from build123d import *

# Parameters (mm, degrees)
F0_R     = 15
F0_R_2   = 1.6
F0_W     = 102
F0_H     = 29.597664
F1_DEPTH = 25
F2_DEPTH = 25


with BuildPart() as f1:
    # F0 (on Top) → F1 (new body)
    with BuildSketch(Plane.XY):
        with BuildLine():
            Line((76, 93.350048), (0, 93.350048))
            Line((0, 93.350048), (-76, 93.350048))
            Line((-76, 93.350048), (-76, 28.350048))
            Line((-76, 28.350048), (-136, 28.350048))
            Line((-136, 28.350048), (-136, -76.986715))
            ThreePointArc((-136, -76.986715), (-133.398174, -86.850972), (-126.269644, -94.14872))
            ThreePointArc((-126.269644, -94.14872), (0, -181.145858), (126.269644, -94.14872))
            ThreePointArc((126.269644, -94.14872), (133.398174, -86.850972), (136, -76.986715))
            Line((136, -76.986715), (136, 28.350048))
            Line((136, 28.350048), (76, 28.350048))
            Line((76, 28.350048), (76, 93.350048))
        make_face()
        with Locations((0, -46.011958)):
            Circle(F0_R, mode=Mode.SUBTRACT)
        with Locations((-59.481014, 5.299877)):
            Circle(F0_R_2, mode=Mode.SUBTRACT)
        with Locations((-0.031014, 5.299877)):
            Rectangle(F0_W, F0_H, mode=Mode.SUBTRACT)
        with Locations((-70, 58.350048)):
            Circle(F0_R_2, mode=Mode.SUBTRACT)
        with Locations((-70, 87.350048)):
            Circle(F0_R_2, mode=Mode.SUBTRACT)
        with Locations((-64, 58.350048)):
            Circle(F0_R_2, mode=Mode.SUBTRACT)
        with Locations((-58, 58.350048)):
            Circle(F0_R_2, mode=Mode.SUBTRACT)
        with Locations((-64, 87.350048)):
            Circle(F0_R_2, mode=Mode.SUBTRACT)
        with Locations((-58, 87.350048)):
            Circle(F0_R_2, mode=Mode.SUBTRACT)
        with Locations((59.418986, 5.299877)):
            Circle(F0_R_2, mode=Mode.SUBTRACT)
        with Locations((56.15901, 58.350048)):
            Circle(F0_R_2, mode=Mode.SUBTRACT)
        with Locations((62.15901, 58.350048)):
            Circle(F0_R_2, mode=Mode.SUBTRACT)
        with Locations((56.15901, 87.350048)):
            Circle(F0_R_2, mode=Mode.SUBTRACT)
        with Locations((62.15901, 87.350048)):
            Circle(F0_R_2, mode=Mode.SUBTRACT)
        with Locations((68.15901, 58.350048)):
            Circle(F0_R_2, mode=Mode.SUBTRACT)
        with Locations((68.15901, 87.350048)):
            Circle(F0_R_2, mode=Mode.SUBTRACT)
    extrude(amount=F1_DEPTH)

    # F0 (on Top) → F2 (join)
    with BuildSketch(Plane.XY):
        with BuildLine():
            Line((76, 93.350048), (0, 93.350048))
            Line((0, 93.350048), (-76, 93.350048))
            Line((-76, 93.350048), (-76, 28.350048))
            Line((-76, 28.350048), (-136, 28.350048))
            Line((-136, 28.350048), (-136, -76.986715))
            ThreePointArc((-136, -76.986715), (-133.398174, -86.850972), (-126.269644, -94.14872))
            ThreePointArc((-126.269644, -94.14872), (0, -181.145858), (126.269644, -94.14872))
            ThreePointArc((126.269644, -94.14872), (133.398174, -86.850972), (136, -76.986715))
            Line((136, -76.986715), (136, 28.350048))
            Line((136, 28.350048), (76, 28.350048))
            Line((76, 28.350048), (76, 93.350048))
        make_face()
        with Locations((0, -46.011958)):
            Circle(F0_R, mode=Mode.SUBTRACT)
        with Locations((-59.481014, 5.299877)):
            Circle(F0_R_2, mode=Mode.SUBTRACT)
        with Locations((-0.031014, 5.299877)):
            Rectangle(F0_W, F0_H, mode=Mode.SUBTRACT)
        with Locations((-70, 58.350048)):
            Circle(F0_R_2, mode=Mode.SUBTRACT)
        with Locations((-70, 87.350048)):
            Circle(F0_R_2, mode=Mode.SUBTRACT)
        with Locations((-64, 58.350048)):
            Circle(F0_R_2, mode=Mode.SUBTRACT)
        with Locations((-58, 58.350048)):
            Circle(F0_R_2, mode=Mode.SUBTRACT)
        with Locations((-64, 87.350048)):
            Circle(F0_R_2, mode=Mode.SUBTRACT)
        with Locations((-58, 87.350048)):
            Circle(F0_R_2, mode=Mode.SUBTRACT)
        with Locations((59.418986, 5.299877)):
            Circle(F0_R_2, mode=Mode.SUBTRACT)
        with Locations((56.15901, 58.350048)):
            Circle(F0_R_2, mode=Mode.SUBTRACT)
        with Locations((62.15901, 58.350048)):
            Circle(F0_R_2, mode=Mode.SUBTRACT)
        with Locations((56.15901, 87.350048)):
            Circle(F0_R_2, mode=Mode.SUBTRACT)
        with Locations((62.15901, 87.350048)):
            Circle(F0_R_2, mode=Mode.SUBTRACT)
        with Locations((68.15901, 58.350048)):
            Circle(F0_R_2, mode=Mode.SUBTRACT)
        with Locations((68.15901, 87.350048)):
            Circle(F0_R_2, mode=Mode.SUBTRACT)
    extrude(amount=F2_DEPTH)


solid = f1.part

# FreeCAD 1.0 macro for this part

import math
import FreeCAD as App
import Part
import Sketcher
Q = App.Units.Quantity


def add_polygon(sketch, points):
    """Adds a closed chain of lines whose ends are joined by coincident constraints."""
    first, n = sketch.GeometryCount, len(points)
    for a, b in zip(points, points[1:] + points[:1]):
        sketch.addGeometry(Part.LineSegment(App.Vector(*a, 0), App.Vector(*b, 0)), False)
    for i in range(n):
        sketch.addConstraint(Sketcher.Constraint("Coincident", first + i, 2, first + (i + 1) % n, 1))

doc = App.newDocument("Part")
body = doc.addObject("PartDesign::Body", "Body")

sketch1 = body.newObject("Sketcher::SketchObject", "Sketch")
sketch1.AttachmentSupport = (doc.getObject("XY_Plane"), [""])
sketch1.MapMode = "FlatFace"
sketch1.addGeometry(Part.LineSegment(App.Vector(76, 93.350048, 0), App.Vector(-76, 93.350048, 0)), False)
sketch1.addGeometry(Part.LineSegment(App.Vector(-76, 93.350048, 0), App.Vector(-76, 28.350048, 0)), False)
sketch1.addGeometry(Part.LineSegment(App.Vector(-76, 28.350048, 0), App.Vector(-136, 28.350048, 0)), False)
sketch1.addGeometry(Part.LineSegment(App.Vector(-136, 28.350048, 0), App.Vector(-136, -76.986715, 0)), False)
sketch1.addGeometry(Part.ArcOfCircle(Part.Circle(App.Vector(-116.000004, -76.986717, 0), App.Vector(0, 0, 1), 19.999996), math.radians(179.999994), math.radians(239.103949)), False)
sketch1.addGeometry(Part.ArcOfCircle(Part.Circle(App.Vector(0, -46.011958, 0), App.Vector(0, 0, 1), 135.1339), math.radians(-159.132055), math.radians(-20.867945)), False)
sketch1.addGeometry(Part.ArcOfCircle(Part.Circle(App.Vector(116.000004, -76.986717, 0), App.Vector(0, 0, 1), 19.999996), math.radians(-59.103949), math.radians(0.000006)), False)
sketch1.addGeometry(Part.LineSegment(App.Vector(136, -76.986715, 0), App.Vector(136, 28.350048, 0)), False)
sketch1.addGeometry(Part.LineSegment(App.Vector(136, 28.350048, 0), App.Vector(76, 28.350048, 0)), False)
sketch1.addGeometry(Part.LineSegment(App.Vector(76, 28.350048, 0), App.Vector(76, 93.350048, 0)), False)
sketch1.addGeometry(Part.Circle(App.Vector(-59.481014, 5.299877, 0), App.Vector(0, 0, 1), 1.6), False)
sketch1.addGeometry(Part.Circle(App.Vector(0, -46.011958, 0), App.Vector(0, 0, 1), 15), False)
add_polygon(sketch1, [(50.968986, -9.498955), (-51.031014, -9.498955), (-51.031014, 20.098709), (50.968986, 20.098709)])
sketch1.addGeometry(Part.Circle(App.Vector(59.418986, 5.299877, 0), App.Vector(0, 0, 1), 1.6), False)
sketch1.addGeometry(Part.Circle(App.Vector(-70, 58.350048, 0), App.Vector(0, 0, 1), 1.6), False)
sketch1.addGeometry(Part.Circle(App.Vector(-64, 58.350048, 0), App.Vector(0, 0, 1), 1.6), False)
sketch1.addGeometry(Part.Circle(App.Vector(-58, 58.350048, 0), App.Vector(0, 0, 1), 1.6), False)
sketch1.addGeometry(Part.Circle(App.Vector(-70, 87.350048, 0), App.Vector(0, 0, 1), 1.6), False)
sketch1.addGeometry(Part.Circle(App.Vector(-64, 87.350048, 0), App.Vector(0, 0, 1), 1.6), False)
sketch1.addGeometry(Part.Circle(App.Vector(-58, 87.350048, 0), App.Vector(0, 0, 1), 1.6), False)
sketch1.addGeometry(Part.Circle(App.Vector(56.15901, 58.350048, 0), App.Vector(0, 0, 1), 1.6), False)
sketch1.addGeometry(Part.Circle(App.Vector(62.15901, 58.350048, 0), App.Vector(0, 0, 1), 1.6), False)
sketch1.addGeometry(Part.Circle(App.Vector(68.15901, 58.350048, 0), App.Vector(0, 0, 1), 1.6), False)
sketch1.addGeometry(Part.Circle(App.Vector(56.15901, 87.350048, 0), App.Vector(0, 0, 1), 1.6), False)
sketch1.addGeometry(Part.Circle(App.Vector(62.15901, 87.350048, 0), App.Vector(0, 0, 1), 1.6), False)
sketch1.addGeometry(Part.Circle(App.Vector(68.15901, 87.350048, 0), App.Vector(0, 0, 1), 1.6), False)
sketch1.addConstraint(Sketcher.Constraint("Coincident", 0, 2, 1, 1))
sketch1.addConstraint(Sketcher.Constraint("Coincident", 1, 2, 2, 1))
sketch1.addConstraint(Sketcher.Constraint("Coincident", 2, 2, 3, 1))
sketch1.addConstraint(Sketcher.Constraint("Tangent", 3, 2, 4, 1))
sketch1.addConstraint(Sketcher.Constraint("Coincident", 4, 2, 5, 1))
sketch1.addConstraint(Sketcher.Constraint("Coincident", 5, 2, 6, 1))
sketch1.addConstraint(Sketcher.Constraint("Tangent", 6, 2, 7, 1))
sketch1.addConstraint(Sketcher.Constraint("Coincident", 7, 2, 8, 1))
sketch1.addConstraint(Sketcher.Constraint("Coincident", 8, 2, 9, 1))
sketch1.addConstraint(Sketcher.Constraint("Coincident", 9, 2, 0, 1))
sketch1.addConstraint(Sketcher.Constraint("Horizontal", 0))
sketch1.addConstraint(Sketcher.Constraint("Vertical", 1))
sketch1.addConstraint(Sketcher.Constraint("Horizontal", 2))
sketch1.addConstraint(Sketcher.Constraint("Vertical", 3))
sketch1.addConstraint(Sketcher.Constraint("Vertical", 7))
sketch1.addConstraint(Sketcher.Constraint("Horizontal", 8))
sketch1.addConstraint(Sketcher.Constraint("Vertical", 9))
sketch1.addConstraint(Sketcher.Constraint("Horizontal", 12))
sketch1.addConstraint(Sketcher.Constraint("Vertical", 13))
sketch1.addConstraint(Sketcher.Constraint("Horizontal", 14))
sketch1.addConstraint(Sketcher.Constraint("Vertical", 15))
sketch1.addConstraint(Sketcher.Constraint("Coincident", 11, 3, 5, 3))
sketch1.addConstraint(Sketcher.Constraint("Equal", 4, 6))
sketch1.addConstraint(Sketcher.Constraint("Equal", 10, 16))
sketch1.addConstraint(Sketcher.Constraint("Equal", 16, 17))
sketch1.addConstraint(Sketcher.Constraint("Equal", 17, 18))
sketch1.addConstraint(Sketcher.Constraint("Equal", 18, 19))
sketch1.addConstraint(Sketcher.Constraint("Equal", 19, 20))
sketch1.addConstraint(Sketcher.Constraint("Equal", 20, 21))
sketch1.addConstraint(Sketcher.Constraint("Equal", 21, 22))
sketch1.addConstraint(Sketcher.Constraint("Equal", 22, 23))
sketch1.addConstraint(Sketcher.Constraint("Equal", 23, 24))
sketch1.addConstraint(Sketcher.Constraint("Equal", 24, 25))
sketch1.addConstraint(Sketcher.Constraint("Equal", 25, 26))
sketch1.addConstraint(Sketcher.Constraint("Equal", 26, 27))
sketch1.addConstraint(Sketcher.Constraint("Equal", 27, 28))
sketch1.addConstraint(Sketcher.Constraint("Symmetric", 4, 3, 6, 3, -2))
sketch1.addConstraint(Sketcher.Constraint("Symmetric", 1, 2, 8, 2, -2))
sketch1.addConstraint(Sketcher.Constraint("PointOnObject", 5, 3, -2))
sketch1.addConstraint(Sketcher.Constraint("Horizontal", 10, 3, 16, 3))
sketch1.addConstraint(Sketcher.Constraint("Horizontal", 17, 3, 18, 3))
sketch1.addConstraint(Sketcher.Constraint("Horizontal", 18, 3, 19, 3))
sketch1.addConstraint(Sketcher.Constraint("Horizontal", 20, 3, 21, 3))
sketch1.addConstraint(Sketcher.Constraint("Horizontal", 21, 3, 22, 3))
sketch1.addConstraint(Sketcher.Constraint("Horizontal", 19, 3, 23, 3))
sketch1.addConstraint(Sketcher.Constraint("Horizontal", 23, 3, 24, 3))
sketch1.addConstraint(Sketcher.Constraint("Horizontal", 24, 3, 25, 3))
sketch1.addConstraint(Sketcher.Constraint("Horizontal", 22, 3, 26, 3))
sketch1.addConstraint(Sketcher.Constraint("Horizontal", 26, 3, 27, 3))
sketch1.addConstraint(Sketcher.Constraint("Horizontal", 27, 3, 28, 3))
sketch1.addConstraint(Sketcher.Constraint("Vertical", 17, 3, 20, 3))
sketch1.addConstraint(Sketcher.Constraint("Vertical", 18, 3, 21, 3))
sketch1.addConstraint(Sketcher.Constraint("Vertical", 19, 3, 22, 3))
sketch1.addConstraint(Sketcher.Constraint("Vertical", 23, 3, 26, 3))
sketch1.addConstraint(Sketcher.Constraint("Vertical", 24, 3, 27, 3))
sketch1.addConstraint(Sketcher.Constraint("Vertical", 25, 3, 28, 3))
sketch1.addConstraint(Sketcher.Constraint("Diameter", 11, Q("30 mm")))
sketch1.addConstraint(Sketcher.Constraint("Diameter", 10, Q("3.2 mm")))
sketch1.addConstraint(Sketcher.Constraint("DistanceX", 0, 2, 0, 1, Q("152 mm")))
sketch1.addConstraint(Sketcher.Constraint("DistanceX", 2, 2, 2, 1, Q("60 mm")))
sketch1.addConstraint(Sketcher.Constraint("DistanceX", 12, 2, 12, 1, Q("102 mm")))
sketch1.addConstraint(Sketcher.Constraint("DistanceY", 1, 2, 1, 1, Q("65 mm")))
sketch1.addConstraint(Sketcher.Constraint("DistanceX", 17, 3, -1, 1, Q("70 mm")))
sketch1.addConstraint(Sketcher.Constraint("DistanceX", 18, 3, -1, 1, Q("64 mm")))
sketch1.addConstraint(Sketcher.Constraint("DistanceX", 19, 3, -1, 1, Q("58 mm")))
sketch1.addConstraint(Sketcher.Constraint("DistanceY", 17, 3, 20, 3, Q("29 mm")))
sketch1.addConstraint(Sketcher.Constraint("DistanceX", 23, 3, 24, 3, Q("6 mm")))
sketch1.addConstraint(Sketcher.Constraint("DistanceX", 24, 3, 25, 3, Q("6 mm")))
sketch1.addConstraint(Sketcher.Constraint("DistanceY", 20, 3, 0, 2, Q("6 mm")))
sketch1.addConstraint(Sketcher.Constraint("Radius", 5, Q("135.1339 mm")))
sketch1.addConstraint(Sketcher.Constraint("DistanceX", 10, 3, 16, 3, Q("118.9 mm")))
sketch1.addConstraint(Sketcher.Constraint("DistanceX", 10, 3, 12, 2, Q("8.45 mm")))
sketch1.addConstraint(Sketcher.Constraint("Radius", 4, Q("19.999996 mm")))
sketch1.addConstraint(Sketcher.Constraint("DistanceY", 3, 2, 3, 1, Q("105.336763 mm")))
sketch1.addConstraint(Sketcher.Constraint("DistanceY", 13, 1, 13, 2, Q("29.597664 mm")))
sketch1.addConstraint(Sketcher.Constraint("DistanceY", 5, 3, -1, 1, Q("46.011958 mm")))
sketch1.addConstraint(Sketcher.Constraint("DistanceY", -1, 1, 20, 3, Q("87.350048 mm")))
sketch1.addConstraint(Sketcher.Constraint("DistanceX", -1, 1, 23, 3, Q("56.15901 mm")))
sketch1.addConstraint(Sketcher.Constraint("DistanceY", -1, 1, 13, 2, Q("20.098709 mm")))
sketch1.addConstraint(Sketcher.Constraint("DistanceX", 4, 3, 10, 3, Q("56.51899 mm")))
sketch1.addConstraint(Sketcher.Constraint("DistanceY", 10, 3, 17, 3, Q("53.050171 mm")))
pad1 = body.newObject("PartDesign::Pad", "Pad")
pad1.Profile = sketch1
pad1.Length = 25

sketch2 = body.newObject("Sketcher::SketchObject", "Sketch001")
sketch2.AttachmentSupport = (doc.getObject("XY_Plane"), [""])
sketch2.MapMode = "FlatFace"
sketch2.addGeometry(Part.LineSegment(App.Vector(76, 93.350048, 0), App.Vector(-76, 93.350048, 0)), False)
sketch2.addGeometry(Part.LineSegment(App.Vector(-76, 93.350048, 0), App.Vector(-76, 28.350048, 0)), False)
sketch2.addGeometry(Part.LineSegment(App.Vector(-76, 28.350048, 0), App.Vector(-136, 28.350048, 0)), False)
sketch2.addGeometry(Part.LineSegment(App.Vector(-136, 28.350048, 0), App.Vector(-136, -76.986715, 0)), False)
sketch2.addGeometry(Part.ArcOfCircle(Part.Circle(App.Vector(-116.000004, -76.986717, 0), App.Vector(0, 0, 1), 19.999996), math.radians(179.999994), math.radians(239.103949)), False)
sketch2.addGeometry(Part.ArcOfCircle(Part.Circle(App.Vector(0, -46.011958, 0), App.Vector(0, 0, 1), 135.1339), math.radians(-159.132055), math.radians(-20.867945)), False)
sketch2.addGeometry(Part.ArcOfCircle(Part.Circle(App.Vector(116.000004, -76.986717, 0), App.Vector(0, 0, 1), 19.999996), math.radians(-59.103949), math.radians(0.000006)), False)
sketch2.addGeometry(Part.LineSegment(App.Vector(136, -76.986715, 0), App.Vector(136, 28.350048, 0)), False)
sketch2.addGeometry(Part.LineSegment(App.Vector(136, 28.350048, 0), App.Vector(76, 28.350048, 0)), False)
sketch2.addGeometry(Part.LineSegment(App.Vector(76, 28.350048, 0), App.Vector(76, 93.350048, 0)), False)
sketch2.addGeometry(Part.Circle(App.Vector(-59.481014, 5.299877, 0), App.Vector(0, 0, 1), 1.6), False)
sketch2.addGeometry(Part.Circle(App.Vector(0, -46.011958, 0), App.Vector(0, 0, 1), 15), False)
add_polygon(sketch2, [(50.968986, -9.498955), (-51.031014, -9.498955), (-51.031014, 20.098709), (50.968986, 20.098709)])
sketch2.addGeometry(Part.Circle(App.Vector(59.418986, 5.299877, 0), App.Vector(0, 0, 1), 1.6), False)
sketch2.addGeometry(Part.Circle(App.Vector(-70, 58.350048, 0), App.Vector(0, 0, 1), 1.6), False)
sketch2.addGeometry(Part.Circle(App.Vector(-64, 58.350048, 0), App.Vector(0, 0, 1), 1.6), False)
sketch2.addGeometry(Part.Circle(App.Vector(-58, 58.350048, 0), App.Vector(0, 0, 1), 1.6), False)
sketch2.addGeometry(Part.Circle(App.Vector(-70, 87.350048, 0), App.Vector(0, 0, 1), 1.6), False)
sketch2.addGeometry(Part.Circle(App.Vector(-64, 87.350048, 0), App.Vector(0, 0, 1), 1.6), False)
sketch2.addGeometry(Part.Circle(App.Vector(-58, 87.350048, 0), App.Vector(0, 0, 1), 1.6), False)
sketch2.addGeometry(Part.Circle(App.Vector(56.15901, 58.350048, 0), App.Vector(0, 0, 1), 1.6), False)
sketch2.addGeometry(Part.Circle(App.Vector(62.15901, 58.350048, 0), App.Vector(0, 0, 1), 1.6), False)
sketch2.addGeometry(Part.Circle(App.Vector(68.15901, 58.350048, 0), App.Vector(0, 0, 1), 1.6), False)
sketch2.addGeometry(Part.Circle(App.Vector(56.15901, 87.350048, 0), App.Vector(0, 0, 1), 1.6), False)
sketch2.addGeometry(Part.Circle(App.Vector(62.15901, 87.350048, 0), App.Vector(0, 0, 1), 1.6), False)
sketch2.addGeometry(Part.Circle(App.Vector(68.15901, 87.350048, 0), App.Vector(0, 0, 1), 1.6), False)
sketch2.addConstraint(Sketcher.Constraint("Coincident", 0, 2, 1, 1))
sketch2.addConstraint(Sketcher.Constraint("Coincident", 1, 2, 2, 1))
sketch2.addConstraint(Sketcher.Constraint("Coincident", 2, 2, 3, 1))
sketch2.addConstraint(Sketcher.Constraint("Tangent", 3, 2, 4, 1))
sketch2.addConstraint(Sketcher.Constraint("Coincident", 4, 2, 5, 1))
sketch2.addConstraint(Sketcher.Constraint("Coincident", 5, 2, 6, 1))
sketch2.addConstraint(Sketcher.Constraint("Tangent", 6, 2, 7, 1))
sketch2.addConstraint(Sketcher.Constraint("Coincident", 7, 2, 8, 1))
sketch2.addConstraint(Sketcher.Constraint("Coincident", 8, 2, 9, 1))
sketch2.addConstraint(Sketcher.Constraint("Coincident", 9, 2, 0, 1))
sketch2.addConstraint(Sketcher.Constraint("Horizontal", 0))
sketch2.addConstraint(Sketcher.Constraint("Vertical", 1))
sketch2.addConstraint(Sketcher.Constraint("Horizontal", 2))
sketch2.addConstraint(Sketcher.Constraint("Vertical", 3))
sketch2.addConstraint(Sketcher.Constraint("Vertical", 7))
sketch2.addConstraint(Sketcher.Constraint("Horizontal", 8))
sketch2.addConstraint(Sketcher.Constraint("Vertical", 9))
sketch2.addConstraint(Sketcher.Constraint("Horizontal", 12))
sketch2.addConstraint(Sketcher.Constraint("Vertical", 13))
sketch2.addConstraint(Sketcher.Constraint("Horizontal", 14))
sketch2.addConstraint(Sketcher.Constraint("Vertical", 15))
sketch2.addConstraint(Sketcher.Constraint("Coincident", 11, 3, 5, 3))
sketch2.addConstraint(Sketcher.Constraint("Equal", 4, 6))
sketch2.addConstraint(Sketcher.Constraint("Equal", 10, 16))
sketch2.addConstraint(Sketcher.Constraint("Equal", 16, 17))
sketch2.addConstraint(Sketcher.Constraint("Equal", 17, 18))
sketch2.addConstraint(Sketcher.Constraint("Equal", 18, 19))
sketch2.addConstraint(Sketcher.Constraint("Equal", 19, 20))
sketch2.addConstraint(Sketcher.Constraint("Equal", 20, 21))
sketch2.addConstraint(Sketcher.Constraint("Equal", 21, 22))
sketch2.addConstraint(Sketcher.Constraint("Equal", 22, 23))
sketch2.addConstraint(Sketcher.Constraint("Equal", 23, 24))
sketch2.addConstraint(Sketcher.Constraint("Equal", 24, 25))
sketch2.addConstraint(Sketcher.Constraint("Equal", 25, 26))
sketch2.addConstraint(Sketcher.Constraint("Equal", 26, 27))
sketch2.addConstraint(Sketcher.Constraint("Equal", 27, 28))
sketch2.addConstraint(Sketcher.Constraint("Symmetric", 4, 3, 6, 3, -2))
sketch2.addConstraint(Sketcher.Constraint("Symmetric", 1, 2, 8, 2, -2))
sketch2.addConstraint(Sketcher.Constraint("PointOnObject", 5, 3, -2))
sketch2.addConstraint(Sketcher.Constraint("Horizontal", 10, 3, 16, 3))
sketch2.addConstraint(Sketcher.Constraint("Horizontal", 17, 3, 18, 3))
sketch2.addConstraint(Sketcher.Constraint("Horizontal", 18, 3, 19, 3))
sketch2.addConstraint(Sketcher.Constraint("Horizontal", 20, 3, 21, 3))
sketch2.addConstraint(Sketcher.Constraint("Horizontal", 21, 3, 22, 3))
sketch2.addConstraint(Sketcher.Constraint("Horizontal", 19, 3, 23, 3))
sketch2.addConstraint(Sketcher.Constraint("Horizontal", 23, 3, 24, 3))
sketch2.addConstraint(Sketcher.Constraint("Horizontal", 24, 3, 25, 3))
sketch2.addConstraint(Sketcher.Constraint("Horizontal", 22, 3, 26, 3))
sketch2.addConstraint(Sketcher.Constraint("Horizontal", 26, 3, 27, 3))
sketch2.addConstraint(Sketcher.Constraint("Horizontal", 27, 3, 28, 3))
sketch2.addConstraint(Sketcher.Constraint("Vertical", 17, 3, 20, 3))
sketch2.addConstraint(Sketcher.Constraint("Vertical", 18, 3, 21, 3))
sketch2.addConstraint(Sketcher.Constraint("Vertical", 19, 3, 22, 3))
sketch2.addConstraint(Sketcher.Constraint("Vertical", 23, 3, 26, 3))
sketch2.addConstraint(Sketcher.Constraint("Vertical", 24, 3, 27, 3))
sketch2.addConstraint(Sketcher.Constraint("Vertical", 25, 3, 28, 3))
sketch2.addConstraint(Sketcher.Constraint("Diameter", 11, Q("30 mm")))
sketch2.addConstraint(Sketcher.Constraint("Diameter", 10, Q("3.2 mm")))
sketch2.addConstraint(Sketcher.Constraint("DistanceX", 0, 2, 0, 1, Q("152 mm")))
sketch2.addConstraint(Sketcher.Constraint("DistanceX", 2, 2, 2, 1, Q("60 mm")))
sketch2.addConstraint(Sketcher.Constraint("DistanceX", 12, 2, 12, 1, Q("102 mm")))
sketch2.addConstraint(Sketcher.Constraint("DistanceY", 1, 2, 1, 1, Q("65 mm")))
sketch2.addConstraint(Sketcher.Constraint("DistanceX", 17, 3, -1, 1, Q("70 mm")))
sketch2.addConstraint(Sketcher.Constraint("DistanceX", 18, 3, -1, 1, Q("64 mm")))
sketch2.addConstraint(Sketcher.Constraint("DistanceX", 19, 3, -1, 1, Q("58 mm")))
sketch2.addConstraint(Sketcher.Constraint("DistanceY", 17, 3, 20, 3, Q("29 mm")))
sketch2.addConstraint(Sketcher.Constraint("DistanceX", 23, 3, 24, 3, Q("6 mm")))
sketch2.addConstraint(Sketcher.Constraint("DistanceX", 24, 3, 25, 3, Q("6 mm")))
sketch2.addConstraint(Sketcher.Constraint("DistanceY", 20, 3, 0, 2, Q("6 mm")))
sketch2.addConstraint(Sketcher.Constraint("Radius", 5, Q("135.1339 mm")))
sketch2.addConstraint(Sketcher.Constraint("DistanceX", 10, 3, 16, 3, Q("118.9 mm")))
sketch2.addConstraint(Sketcher.Constraint("DistanceX", 10, 3, 12, 2, Q("8.45 mm")))
sketch2.addConstraint(Sketcher.Constraint("Radius", 4, Q("19.999996 mm")))
sketch2.addConstraint(Sketcher.Constraint("DistanceY", 3, 2, 3, 1, Q("105.336763 mm")))
sketch2.addConstraint(Sketcher.Constraint("DistanceY", 13, 1, 13, 2, Q("29.597664 mm")))
sketch2.addConstraint(Sketcher.Constraint("DistanceY", 5, 3, -1, 1, Q("46.011958 mm")))
sketch2.addConstraint(Sketcher.Constraint("DistanceY", -1, 1, 20, 3, Q("87.350048 mm")))
sketch2.addConstraint(Sketcher.Constraint("DistanceX", -1, 1, 23, 3, Q("56.15901 mm")))
sketch2.addConstraint(Sketcher.Constraint("DistanceY", -1, 1, 13, 2, Q("20.098709 mm")))
sketch2.addConstraint(Sketcher.Constraint("DistanceX", 4, 3, 10, 3, Q("56.51899 mm")))
sketch2.addConstraint(Sketcher.Constraint("DistanceY", 10, 3, 17, 3, Q("53.050171 mm")))
pad2 = body.newObject("PartDesign::Pad", "Pad001")
pad2.Profile = sketch2
pad2.Length = 25

doc.recompute()
